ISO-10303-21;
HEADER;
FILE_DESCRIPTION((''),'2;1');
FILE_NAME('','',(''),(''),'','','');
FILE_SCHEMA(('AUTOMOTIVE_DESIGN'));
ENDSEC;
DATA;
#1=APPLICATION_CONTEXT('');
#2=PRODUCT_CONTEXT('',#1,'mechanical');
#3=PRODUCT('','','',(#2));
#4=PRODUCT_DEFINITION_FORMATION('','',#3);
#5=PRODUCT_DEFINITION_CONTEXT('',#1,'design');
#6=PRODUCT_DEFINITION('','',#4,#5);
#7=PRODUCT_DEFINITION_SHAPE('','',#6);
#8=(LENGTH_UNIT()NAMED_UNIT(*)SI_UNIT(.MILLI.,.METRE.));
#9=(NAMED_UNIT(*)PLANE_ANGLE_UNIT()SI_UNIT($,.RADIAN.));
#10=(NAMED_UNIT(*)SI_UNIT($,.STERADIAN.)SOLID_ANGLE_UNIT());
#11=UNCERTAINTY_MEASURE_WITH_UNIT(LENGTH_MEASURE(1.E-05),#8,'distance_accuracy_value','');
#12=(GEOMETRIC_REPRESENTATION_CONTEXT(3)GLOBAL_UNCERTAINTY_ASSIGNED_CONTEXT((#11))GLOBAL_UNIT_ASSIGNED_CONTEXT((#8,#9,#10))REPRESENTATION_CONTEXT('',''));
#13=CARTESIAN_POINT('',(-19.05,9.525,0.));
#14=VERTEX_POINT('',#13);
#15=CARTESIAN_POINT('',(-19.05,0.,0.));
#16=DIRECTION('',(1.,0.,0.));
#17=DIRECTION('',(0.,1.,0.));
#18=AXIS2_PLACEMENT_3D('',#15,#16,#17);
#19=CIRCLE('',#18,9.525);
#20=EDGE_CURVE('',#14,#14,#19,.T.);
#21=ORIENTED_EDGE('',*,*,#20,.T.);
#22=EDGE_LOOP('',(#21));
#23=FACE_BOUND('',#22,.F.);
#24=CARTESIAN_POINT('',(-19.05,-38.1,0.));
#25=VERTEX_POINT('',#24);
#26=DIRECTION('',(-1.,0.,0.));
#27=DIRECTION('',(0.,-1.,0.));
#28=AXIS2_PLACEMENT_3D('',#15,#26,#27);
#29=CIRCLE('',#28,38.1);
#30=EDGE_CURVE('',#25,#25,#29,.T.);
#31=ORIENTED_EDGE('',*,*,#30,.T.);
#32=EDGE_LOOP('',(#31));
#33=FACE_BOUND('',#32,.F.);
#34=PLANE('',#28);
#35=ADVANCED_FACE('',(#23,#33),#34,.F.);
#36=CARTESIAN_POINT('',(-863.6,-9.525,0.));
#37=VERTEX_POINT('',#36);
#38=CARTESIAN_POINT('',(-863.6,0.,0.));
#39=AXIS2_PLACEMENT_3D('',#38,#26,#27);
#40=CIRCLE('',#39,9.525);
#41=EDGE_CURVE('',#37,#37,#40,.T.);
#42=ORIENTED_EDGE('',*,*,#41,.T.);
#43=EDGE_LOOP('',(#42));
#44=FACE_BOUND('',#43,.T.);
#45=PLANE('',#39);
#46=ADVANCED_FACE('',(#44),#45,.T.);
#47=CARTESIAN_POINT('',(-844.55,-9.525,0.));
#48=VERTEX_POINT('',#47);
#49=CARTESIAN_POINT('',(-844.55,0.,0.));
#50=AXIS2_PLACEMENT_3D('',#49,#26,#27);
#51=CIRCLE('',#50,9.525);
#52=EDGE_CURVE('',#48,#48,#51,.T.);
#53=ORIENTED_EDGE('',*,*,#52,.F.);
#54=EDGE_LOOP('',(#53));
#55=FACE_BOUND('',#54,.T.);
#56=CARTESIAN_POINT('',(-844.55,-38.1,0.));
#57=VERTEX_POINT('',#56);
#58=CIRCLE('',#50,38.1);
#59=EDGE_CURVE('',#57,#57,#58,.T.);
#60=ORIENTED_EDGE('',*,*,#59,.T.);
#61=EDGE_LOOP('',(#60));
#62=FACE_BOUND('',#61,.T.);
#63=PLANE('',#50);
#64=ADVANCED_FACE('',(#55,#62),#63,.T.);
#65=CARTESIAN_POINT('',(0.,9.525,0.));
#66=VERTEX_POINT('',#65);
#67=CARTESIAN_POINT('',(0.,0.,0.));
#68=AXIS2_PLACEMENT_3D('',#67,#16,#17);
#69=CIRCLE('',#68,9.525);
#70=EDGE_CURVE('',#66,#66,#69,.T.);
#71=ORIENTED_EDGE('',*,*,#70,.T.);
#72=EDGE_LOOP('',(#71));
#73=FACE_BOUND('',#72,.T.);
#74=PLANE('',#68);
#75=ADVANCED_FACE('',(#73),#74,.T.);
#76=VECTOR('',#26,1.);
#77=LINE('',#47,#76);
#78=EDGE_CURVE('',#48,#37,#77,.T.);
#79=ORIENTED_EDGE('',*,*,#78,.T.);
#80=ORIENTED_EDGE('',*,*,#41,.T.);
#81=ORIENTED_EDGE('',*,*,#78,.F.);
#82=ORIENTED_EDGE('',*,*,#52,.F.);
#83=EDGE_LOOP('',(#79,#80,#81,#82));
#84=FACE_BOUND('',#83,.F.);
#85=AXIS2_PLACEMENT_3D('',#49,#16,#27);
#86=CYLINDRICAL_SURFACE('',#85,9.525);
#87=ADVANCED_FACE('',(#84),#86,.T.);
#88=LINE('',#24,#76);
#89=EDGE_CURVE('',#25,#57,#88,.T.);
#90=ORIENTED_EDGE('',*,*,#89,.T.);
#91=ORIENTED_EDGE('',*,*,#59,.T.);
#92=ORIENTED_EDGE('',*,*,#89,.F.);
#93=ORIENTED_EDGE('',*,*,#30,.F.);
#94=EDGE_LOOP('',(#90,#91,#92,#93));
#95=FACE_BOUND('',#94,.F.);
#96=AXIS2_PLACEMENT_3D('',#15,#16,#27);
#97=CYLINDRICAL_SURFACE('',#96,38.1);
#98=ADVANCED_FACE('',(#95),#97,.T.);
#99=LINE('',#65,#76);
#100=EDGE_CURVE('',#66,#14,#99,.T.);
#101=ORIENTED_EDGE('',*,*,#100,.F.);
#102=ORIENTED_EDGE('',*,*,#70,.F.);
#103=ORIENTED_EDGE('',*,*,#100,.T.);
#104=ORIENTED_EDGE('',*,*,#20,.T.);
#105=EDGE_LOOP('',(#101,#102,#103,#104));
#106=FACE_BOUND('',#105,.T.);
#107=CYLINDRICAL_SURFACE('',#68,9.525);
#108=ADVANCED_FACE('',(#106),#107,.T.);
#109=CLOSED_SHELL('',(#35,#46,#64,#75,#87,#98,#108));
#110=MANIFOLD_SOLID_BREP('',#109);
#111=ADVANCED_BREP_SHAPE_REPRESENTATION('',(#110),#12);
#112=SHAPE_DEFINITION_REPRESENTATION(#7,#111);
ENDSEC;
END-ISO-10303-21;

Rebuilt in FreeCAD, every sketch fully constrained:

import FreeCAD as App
import Part
import Sketcher
from FreeCAD import Vector
Q = App.Units.Quantity

doc = App.newDocument("Part")
body = doc.addObject("PartDesign::Body", "Body")

sketch1 = doc.addObject("Sketcher::SketchObject", "Sketch")
body.addObject(sketch1)
sketch1.AttachmentSupport = (doc.YZ_Plane, [""])
sketch1.MapMode = "FlatFace"
sketch1.addGeometry(Part.Circle(Vector(0, 0, 0), Vector(0, 0, 1), 10), False)
sketch1.addConstraint([
    Sketcher.Constraint("Coincident", 0, 3, -1, 1),
    Sketcher.Constraint("Diameter", 0, Q("0.75 in")),
])
pad1 = doc.addObject("PartDesign::Pad", "Pad")
body.addObject(pad1)
pad1.Profile = sketch1
pad1.Length = Q("0.75 in")
pad1.Reversed = True

sketch2 = doc.addObject("Sketcher::SketchObject", "Sketch001")
body.addObject(sketch2)
sketch2.AttachmentSupport = (doc.YZ_Plane, [""])
sketch2.MapMode = "FlatFace"
sketch2.AttachmentOffset = App.Placement(Vector(0, 0, -0.75 * 25.4), App.Rotation())
sketch2.addGeometry(Part.Circle(Vector(0, 0, 0), Vector(0, 0, 1), 38), False)
sketch2.addConstraint([
    Sketcher.Constraint("Coincident", 0, 3, -1, 1),
    Sketcher.Constraint("Diameter", 0, Q("3 in")),
])
pad2 = doc.addObject("PartDesign::Pad", "Pad001")
body.addObject(pad2)
pad2.Profile = sketch2
pad2.Length = Q("32.5 in")
pad2.Reversed = True

sketch3 = doc.addObject("Sketcher::SketchObject", "Sketch002")
body.addObject(sketch3)
sketch3.AttachmentSupport = (doc.YZ_Plane, [""])
sketch3.MapMode = "FlatFace"
sketch3.AttachmentOffset = App.Placement(Vector(0, 0, -33.25 * 25.4), App.Rotation())
sketch3.addGeometry(Part.Circle(Vector(0, 0, 0), Vector(0, 0, 1), 10), False)
sketch3.addConstraint([
    Sketcher.Constraint("Coincident", 0, 3, -1, 1),
    Sketcher.Constraint("Diameter", 0, Q("0.75 in")),
])
pad3 = doc.addObject("PartDesign::Pad", "Pad002")
body.addObject(pad3)
pad3.Profile = sketch3
pad3.Length = Q("0.75 in")
pad3.Reversed = True

doc.recompute()
